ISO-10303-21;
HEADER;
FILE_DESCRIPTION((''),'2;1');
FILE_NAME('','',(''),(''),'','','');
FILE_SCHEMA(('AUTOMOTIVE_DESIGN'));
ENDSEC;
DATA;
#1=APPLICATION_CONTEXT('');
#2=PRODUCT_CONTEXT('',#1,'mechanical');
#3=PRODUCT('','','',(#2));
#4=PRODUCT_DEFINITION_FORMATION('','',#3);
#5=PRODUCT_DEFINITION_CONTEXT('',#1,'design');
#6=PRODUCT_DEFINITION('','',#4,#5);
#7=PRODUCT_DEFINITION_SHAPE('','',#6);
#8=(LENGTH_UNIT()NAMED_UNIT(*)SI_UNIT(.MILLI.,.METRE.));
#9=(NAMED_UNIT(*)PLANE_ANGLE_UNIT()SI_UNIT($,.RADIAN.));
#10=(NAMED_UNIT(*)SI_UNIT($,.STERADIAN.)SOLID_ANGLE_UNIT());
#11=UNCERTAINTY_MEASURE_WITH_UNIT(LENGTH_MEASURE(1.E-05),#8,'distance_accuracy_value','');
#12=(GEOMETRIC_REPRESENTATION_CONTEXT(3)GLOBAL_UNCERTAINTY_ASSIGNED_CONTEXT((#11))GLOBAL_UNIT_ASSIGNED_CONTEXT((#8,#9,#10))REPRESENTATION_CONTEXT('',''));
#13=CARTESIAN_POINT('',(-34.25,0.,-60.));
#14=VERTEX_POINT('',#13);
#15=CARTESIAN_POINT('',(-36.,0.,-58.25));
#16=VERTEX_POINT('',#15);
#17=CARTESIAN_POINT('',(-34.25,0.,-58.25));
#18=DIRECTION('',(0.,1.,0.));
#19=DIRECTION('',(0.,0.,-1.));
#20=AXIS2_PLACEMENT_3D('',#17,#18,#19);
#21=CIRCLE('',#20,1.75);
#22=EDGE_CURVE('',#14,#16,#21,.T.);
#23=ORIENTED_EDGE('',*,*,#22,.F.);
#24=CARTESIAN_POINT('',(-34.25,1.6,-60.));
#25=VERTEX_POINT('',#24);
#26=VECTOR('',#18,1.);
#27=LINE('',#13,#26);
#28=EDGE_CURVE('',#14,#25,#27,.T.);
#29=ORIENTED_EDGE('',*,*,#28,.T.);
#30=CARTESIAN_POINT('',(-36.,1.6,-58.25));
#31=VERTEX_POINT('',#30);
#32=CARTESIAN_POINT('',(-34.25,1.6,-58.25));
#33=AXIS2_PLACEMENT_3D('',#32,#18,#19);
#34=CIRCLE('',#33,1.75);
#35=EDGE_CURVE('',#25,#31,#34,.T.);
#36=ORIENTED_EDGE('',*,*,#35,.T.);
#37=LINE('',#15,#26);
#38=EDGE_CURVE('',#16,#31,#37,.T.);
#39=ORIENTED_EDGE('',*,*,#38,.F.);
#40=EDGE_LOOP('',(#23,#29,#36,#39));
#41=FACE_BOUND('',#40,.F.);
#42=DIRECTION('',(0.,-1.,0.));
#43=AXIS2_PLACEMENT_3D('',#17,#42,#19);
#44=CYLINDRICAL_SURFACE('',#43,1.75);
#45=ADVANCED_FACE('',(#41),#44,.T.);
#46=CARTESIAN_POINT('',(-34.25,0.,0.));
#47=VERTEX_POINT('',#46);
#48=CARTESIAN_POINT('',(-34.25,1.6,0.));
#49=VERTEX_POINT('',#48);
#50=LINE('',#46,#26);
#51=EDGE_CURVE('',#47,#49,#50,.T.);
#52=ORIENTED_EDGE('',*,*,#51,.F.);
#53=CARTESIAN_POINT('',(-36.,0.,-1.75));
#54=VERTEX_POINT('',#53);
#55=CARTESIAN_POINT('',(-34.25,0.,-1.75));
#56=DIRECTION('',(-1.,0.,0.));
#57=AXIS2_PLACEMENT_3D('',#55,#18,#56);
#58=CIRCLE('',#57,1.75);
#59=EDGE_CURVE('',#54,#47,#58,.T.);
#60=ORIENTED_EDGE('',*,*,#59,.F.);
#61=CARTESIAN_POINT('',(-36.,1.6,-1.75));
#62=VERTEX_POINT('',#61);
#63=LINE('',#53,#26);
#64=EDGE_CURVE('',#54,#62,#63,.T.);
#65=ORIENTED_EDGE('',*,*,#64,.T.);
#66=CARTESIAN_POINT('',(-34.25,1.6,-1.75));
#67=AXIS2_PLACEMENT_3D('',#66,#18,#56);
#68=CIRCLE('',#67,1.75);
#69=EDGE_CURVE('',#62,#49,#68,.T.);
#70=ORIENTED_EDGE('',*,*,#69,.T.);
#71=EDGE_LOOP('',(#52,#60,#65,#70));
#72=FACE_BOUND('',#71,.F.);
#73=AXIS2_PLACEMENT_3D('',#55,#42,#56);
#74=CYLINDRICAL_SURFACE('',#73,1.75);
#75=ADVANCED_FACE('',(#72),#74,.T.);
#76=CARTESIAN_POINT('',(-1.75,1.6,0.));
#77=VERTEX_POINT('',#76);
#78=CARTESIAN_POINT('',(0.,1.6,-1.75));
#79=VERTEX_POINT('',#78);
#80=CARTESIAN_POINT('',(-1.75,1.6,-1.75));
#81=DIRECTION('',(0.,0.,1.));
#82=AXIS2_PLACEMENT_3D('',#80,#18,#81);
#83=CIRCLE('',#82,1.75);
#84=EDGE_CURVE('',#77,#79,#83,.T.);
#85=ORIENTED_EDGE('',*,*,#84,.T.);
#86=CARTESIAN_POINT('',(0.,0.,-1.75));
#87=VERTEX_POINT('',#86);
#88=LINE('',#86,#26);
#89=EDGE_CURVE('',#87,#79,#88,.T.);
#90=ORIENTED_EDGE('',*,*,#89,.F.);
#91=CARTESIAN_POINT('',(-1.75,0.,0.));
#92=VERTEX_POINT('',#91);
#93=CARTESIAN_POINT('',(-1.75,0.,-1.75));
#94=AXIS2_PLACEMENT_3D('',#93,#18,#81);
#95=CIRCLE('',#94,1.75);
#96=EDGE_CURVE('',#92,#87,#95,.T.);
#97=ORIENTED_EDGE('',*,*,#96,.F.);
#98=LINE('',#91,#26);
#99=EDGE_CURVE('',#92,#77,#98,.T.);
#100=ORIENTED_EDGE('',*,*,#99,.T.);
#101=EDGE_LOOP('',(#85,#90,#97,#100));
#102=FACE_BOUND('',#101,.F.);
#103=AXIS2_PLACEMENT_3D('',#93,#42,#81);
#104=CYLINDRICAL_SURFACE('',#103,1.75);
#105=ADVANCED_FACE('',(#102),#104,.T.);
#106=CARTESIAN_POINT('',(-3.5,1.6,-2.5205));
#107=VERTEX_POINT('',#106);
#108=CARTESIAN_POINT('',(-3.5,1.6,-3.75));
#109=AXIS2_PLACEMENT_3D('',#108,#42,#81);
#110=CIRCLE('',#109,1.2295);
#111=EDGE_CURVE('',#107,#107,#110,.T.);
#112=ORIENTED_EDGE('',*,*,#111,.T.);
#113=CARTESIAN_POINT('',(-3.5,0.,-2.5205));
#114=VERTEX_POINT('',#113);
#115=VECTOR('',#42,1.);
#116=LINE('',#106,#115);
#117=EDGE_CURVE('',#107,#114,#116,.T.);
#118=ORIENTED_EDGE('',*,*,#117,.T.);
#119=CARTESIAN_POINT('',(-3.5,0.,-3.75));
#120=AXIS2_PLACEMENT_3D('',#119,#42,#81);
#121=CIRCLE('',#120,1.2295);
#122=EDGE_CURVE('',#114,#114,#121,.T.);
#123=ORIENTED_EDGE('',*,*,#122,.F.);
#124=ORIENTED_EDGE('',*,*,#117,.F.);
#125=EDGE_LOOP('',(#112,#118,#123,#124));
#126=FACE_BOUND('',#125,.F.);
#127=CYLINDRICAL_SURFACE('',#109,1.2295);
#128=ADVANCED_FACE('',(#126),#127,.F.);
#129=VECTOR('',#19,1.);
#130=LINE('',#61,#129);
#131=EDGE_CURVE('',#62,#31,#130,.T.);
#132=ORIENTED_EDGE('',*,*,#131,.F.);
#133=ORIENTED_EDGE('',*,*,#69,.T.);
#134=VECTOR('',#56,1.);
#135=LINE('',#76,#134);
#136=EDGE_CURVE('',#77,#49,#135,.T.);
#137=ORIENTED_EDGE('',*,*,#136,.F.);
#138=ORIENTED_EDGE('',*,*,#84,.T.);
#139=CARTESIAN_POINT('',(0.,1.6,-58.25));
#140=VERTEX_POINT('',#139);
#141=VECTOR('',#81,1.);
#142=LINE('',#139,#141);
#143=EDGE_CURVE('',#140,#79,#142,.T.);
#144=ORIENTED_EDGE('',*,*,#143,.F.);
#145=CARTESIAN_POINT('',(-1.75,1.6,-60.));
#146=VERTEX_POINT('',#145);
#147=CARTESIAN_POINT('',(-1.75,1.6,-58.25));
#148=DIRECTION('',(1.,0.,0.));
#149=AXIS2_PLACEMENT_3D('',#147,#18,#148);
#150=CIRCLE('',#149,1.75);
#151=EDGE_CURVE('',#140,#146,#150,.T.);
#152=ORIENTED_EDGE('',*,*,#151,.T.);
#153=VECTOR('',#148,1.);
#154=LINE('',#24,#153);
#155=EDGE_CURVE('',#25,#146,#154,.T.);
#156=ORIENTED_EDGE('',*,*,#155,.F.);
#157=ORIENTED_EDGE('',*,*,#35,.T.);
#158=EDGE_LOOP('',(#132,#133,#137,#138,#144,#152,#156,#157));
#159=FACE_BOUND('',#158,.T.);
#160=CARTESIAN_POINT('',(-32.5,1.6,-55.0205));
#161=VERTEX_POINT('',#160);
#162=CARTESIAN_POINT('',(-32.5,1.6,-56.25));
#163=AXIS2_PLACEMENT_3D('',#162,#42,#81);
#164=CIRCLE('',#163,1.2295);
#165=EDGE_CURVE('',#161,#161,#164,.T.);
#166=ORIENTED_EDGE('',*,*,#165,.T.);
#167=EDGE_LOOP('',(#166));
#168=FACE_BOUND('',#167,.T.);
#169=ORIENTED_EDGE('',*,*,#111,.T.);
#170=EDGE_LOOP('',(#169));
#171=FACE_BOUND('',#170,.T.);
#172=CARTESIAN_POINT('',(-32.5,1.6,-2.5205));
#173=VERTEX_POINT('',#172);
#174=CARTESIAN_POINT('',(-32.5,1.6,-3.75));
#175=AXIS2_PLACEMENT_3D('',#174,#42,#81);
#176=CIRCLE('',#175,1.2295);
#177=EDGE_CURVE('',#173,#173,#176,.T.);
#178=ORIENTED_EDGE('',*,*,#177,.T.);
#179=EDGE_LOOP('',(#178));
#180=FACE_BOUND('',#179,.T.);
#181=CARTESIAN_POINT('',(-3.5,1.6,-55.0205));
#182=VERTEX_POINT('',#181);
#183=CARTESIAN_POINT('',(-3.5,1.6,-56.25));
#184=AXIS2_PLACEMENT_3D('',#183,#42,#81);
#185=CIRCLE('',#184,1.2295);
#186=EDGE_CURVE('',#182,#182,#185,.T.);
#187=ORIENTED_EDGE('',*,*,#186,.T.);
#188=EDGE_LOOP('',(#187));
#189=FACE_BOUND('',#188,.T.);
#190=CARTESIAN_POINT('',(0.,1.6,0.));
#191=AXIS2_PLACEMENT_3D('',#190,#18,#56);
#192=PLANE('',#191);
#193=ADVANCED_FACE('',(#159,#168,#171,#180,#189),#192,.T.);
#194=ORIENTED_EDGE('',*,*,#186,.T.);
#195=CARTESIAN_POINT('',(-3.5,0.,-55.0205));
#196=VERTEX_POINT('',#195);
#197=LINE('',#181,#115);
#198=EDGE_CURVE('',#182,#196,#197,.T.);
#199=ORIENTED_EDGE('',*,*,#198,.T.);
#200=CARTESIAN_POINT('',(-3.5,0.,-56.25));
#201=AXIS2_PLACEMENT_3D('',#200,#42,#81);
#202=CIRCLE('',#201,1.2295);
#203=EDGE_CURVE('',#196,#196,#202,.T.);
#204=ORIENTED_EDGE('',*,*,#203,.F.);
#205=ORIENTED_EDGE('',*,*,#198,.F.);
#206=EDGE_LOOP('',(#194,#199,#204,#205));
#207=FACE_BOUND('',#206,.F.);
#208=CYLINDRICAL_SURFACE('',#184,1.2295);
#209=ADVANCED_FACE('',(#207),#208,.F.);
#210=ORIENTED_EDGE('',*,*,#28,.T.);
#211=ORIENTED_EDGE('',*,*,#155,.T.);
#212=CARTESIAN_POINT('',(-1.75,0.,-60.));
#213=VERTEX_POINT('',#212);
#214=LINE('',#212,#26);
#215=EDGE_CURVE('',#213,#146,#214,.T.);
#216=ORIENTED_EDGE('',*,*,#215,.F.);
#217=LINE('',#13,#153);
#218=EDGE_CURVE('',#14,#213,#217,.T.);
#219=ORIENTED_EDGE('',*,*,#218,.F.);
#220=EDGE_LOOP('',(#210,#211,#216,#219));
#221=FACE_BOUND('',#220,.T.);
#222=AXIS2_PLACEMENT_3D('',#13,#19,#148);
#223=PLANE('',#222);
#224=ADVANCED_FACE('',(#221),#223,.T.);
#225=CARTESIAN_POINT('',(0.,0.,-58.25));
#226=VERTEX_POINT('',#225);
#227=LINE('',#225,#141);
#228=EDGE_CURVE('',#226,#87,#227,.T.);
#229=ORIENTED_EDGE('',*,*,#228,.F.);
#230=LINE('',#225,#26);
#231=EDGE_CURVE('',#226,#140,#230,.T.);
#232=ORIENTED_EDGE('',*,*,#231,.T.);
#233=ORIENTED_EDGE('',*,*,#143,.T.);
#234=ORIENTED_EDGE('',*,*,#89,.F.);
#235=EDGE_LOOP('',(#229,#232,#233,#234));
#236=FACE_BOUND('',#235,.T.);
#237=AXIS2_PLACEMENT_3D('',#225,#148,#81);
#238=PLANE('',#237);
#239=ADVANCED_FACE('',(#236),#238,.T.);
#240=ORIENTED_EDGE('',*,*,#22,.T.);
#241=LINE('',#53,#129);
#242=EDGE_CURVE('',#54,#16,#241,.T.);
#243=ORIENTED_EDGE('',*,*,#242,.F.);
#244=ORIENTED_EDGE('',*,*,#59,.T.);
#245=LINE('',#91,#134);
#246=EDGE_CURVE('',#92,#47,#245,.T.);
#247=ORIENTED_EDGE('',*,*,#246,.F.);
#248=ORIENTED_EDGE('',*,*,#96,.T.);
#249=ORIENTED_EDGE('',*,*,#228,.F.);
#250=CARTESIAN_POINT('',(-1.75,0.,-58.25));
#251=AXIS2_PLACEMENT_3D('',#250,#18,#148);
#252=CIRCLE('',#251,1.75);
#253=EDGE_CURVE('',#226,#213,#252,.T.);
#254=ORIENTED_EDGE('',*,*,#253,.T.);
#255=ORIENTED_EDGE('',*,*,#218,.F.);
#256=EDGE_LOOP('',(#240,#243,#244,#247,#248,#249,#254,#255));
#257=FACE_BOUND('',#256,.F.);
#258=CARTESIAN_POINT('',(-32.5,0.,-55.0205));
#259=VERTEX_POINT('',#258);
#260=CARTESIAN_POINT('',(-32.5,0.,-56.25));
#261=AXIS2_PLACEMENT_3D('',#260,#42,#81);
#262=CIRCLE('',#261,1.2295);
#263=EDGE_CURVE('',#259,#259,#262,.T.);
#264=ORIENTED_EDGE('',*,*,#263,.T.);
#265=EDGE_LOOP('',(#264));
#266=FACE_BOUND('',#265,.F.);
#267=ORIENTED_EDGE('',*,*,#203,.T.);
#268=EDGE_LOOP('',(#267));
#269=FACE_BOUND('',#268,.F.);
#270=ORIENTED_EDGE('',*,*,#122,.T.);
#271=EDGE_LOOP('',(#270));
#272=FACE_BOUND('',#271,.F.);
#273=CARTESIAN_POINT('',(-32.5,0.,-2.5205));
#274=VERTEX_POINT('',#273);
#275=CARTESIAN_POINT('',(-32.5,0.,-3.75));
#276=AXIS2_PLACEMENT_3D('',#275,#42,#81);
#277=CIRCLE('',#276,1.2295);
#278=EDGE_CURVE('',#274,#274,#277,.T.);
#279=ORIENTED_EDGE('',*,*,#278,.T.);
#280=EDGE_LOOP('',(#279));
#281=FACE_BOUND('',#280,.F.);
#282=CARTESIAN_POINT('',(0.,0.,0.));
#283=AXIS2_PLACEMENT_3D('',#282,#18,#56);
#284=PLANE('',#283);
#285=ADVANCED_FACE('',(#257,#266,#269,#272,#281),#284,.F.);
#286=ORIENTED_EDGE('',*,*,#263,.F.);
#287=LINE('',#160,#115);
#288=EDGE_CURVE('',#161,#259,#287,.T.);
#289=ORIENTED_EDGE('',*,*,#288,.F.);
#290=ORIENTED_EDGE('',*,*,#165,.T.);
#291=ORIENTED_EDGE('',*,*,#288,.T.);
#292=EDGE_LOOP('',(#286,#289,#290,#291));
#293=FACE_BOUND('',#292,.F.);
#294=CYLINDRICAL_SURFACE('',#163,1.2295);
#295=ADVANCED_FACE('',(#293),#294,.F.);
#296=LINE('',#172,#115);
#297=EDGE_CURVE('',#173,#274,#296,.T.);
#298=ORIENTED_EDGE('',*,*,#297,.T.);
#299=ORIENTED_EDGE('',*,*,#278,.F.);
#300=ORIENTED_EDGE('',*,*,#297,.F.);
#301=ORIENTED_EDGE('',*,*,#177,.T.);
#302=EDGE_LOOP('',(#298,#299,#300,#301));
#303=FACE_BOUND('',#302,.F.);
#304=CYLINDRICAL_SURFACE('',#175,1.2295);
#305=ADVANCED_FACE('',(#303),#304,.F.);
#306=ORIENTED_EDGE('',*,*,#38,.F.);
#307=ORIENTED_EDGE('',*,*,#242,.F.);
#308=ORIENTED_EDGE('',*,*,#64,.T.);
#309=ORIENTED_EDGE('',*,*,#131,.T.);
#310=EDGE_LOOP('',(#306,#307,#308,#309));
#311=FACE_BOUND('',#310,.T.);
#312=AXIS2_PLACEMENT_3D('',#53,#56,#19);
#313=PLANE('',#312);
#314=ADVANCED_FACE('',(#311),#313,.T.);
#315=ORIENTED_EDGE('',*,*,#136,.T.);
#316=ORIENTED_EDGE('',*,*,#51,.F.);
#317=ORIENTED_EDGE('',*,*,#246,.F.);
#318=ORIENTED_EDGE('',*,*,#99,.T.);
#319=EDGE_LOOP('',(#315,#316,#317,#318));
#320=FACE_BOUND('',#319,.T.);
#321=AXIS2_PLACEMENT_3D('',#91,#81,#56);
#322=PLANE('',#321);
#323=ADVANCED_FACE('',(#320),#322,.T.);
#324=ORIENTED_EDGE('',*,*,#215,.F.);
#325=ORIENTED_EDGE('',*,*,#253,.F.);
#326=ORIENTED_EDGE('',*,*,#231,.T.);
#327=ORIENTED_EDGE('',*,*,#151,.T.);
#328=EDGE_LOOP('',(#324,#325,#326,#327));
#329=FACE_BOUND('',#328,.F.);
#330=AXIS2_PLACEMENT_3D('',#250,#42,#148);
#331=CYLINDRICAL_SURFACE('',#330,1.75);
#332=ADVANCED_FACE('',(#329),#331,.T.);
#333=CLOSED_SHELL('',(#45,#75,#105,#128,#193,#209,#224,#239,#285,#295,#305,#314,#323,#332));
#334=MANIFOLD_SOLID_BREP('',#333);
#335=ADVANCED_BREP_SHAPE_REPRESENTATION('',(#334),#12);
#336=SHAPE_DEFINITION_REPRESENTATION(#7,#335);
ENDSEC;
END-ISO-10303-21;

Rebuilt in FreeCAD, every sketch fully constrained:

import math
import FreeCAD as App
import Part
import Sketcher
Q = App.Units.Quantity

doc = App.newDocument("Part")
body = doc.addObject("PartDesign::Body", "Body")

# Sketch on XZ plane
sketch1 = body.newObject("Sketcher::SketchObject", "Sketch")
sketch1.AttachmentSupport = (doc.getObject("XZ_Plane"), [""])
sketch1.MapMode = "FlatFace"
sketch1.addGeometry(Part.LineSegment(App.Vector(-34.2, 0, 0), App.Vector(-1.8, 0, 0)), False)
sketch1.addGeometry(Part.ArcOfCircle(Part.Circle(App.Vector(-1.8, -1.8, 0), App.Vector(0, 0, 1), 1.8), math.radians(0), math.radians(90)), False)
sketch1.addGeometry(Part.LineSegment(App.Vector(0, -1.8, 0), App.Vector(0, -58.2, 0)), False)
sketch1.addGeometry(Part.ArcOfCircle(Part.Circle(App.Vector(-1.8, -58.2, 0), App.Vector(0, 0, 1), 1.8), math.radians(-90), math.radians(0)), False)
sketch1.addGeometry(Part.LineSegment(App.Vector(-1.8, -60, 0), App.Vector(-34.2, -60, 0)), False)
sketch1.addGeometry(Part.ArcOfCircle(Part.Circle(App.Vector(-34.2, -58.2, 0), App.Vector(0, 0, 1), 1.8), math.radians(180), math.radians(270)), False)
sketch1.addGeometry(Part.LineSegment(App.Vector(-36, -58.2, 0), App.Vector(-36, -1.8, 0)), False)
sketch1.addGeometry(Part.ArcOfCircle(Part.Circle(App.Vector(-34.2, -1.8, 0), App.Vector(0, 0, 1), 1.8), math.radians(90), math.radians(180)), False)
sketch1.addConstraint(Sketcher.Constraint("Tangent", 0, 2, 1, 2))
sketch1.addConstraint(Sketcher.Constraint("Tangent", 1, 1, 2, 1))
sketch1.addConstraint(Sketcher.Constraint("Tangent", 2, 2, 3, 2))
sketch1.addConstraint(Sketcher.Constraint("Tangent", 3, 1, 4, 1))
sketch1.addConstraint(Sketcher.Constraint("Tangent", 4, 2, 5, 2))
sketch1.addConstraint(Sketcher.Constraint("Tangent", 5, 1, 6, 1))
sketch1.addConstraint(Sketcher.Constraint("Tangent", 6, 2, 7, 2))
sketch1.addConstraint(Sketcher.Constraint("Tangent", 7, 1, 0, 1))
sketch1.addConstraint(Sketcher.Constraint("Horizontal", 0))
sketch1.addConstraint(Sketcher.Constraint("Vertical", 2))
sketch1.addConstraint(Sketcher.Constraint("Horizontal", 4))
sketch1.addConstraint(Sketcher.Constraint("Vertical", 6))
sketch1.addConstraint(Sketcher.Constraint("Equal", 1, 3))
sketch1.addConstraint(Sketcher.Constraint("Equal", 3, 5))
sketch1.addConstraint(Sketcher.Constraint("Equal", 5, 7))
sketch1.addConstraint(Sketcher.Constraint("PointOnObject", 0, 2, -1))
sketch1.addConstraint(Sketcher.Constraint("PointOnObject", 1, 1, -2))
sketch1.addConstraint(Sketcher.Constraint("Radius", 1, Q("1.75 mm")))
sketch1.addConstraint(Sketcher.Constraint("DistanceY", 3, 1, -1, 1, Q("60 mm")))
sketch1.addConstraint(Sketcher.Constraint("DistanceX", 5, 1, -1, 1, Q("36 mm")))
pad1 = body.newObject("PartDesign::Pad", "Pad")
pad1.Profile = sketch1
pad1.Length = 1.6
pad1.Reversed = True

# Sketch on XZ plane
sketch2 = body.newObject("Sketcher::SketchObject", "Sketch001")
sketch2.AttachmentSupport = (doc.getObject("XZ_Plane"), [""])
sketch2.MapMode = "FlatFace"
sketch2.AttachmentOffset = App.Placement(App.Vector(0, 0, -1.6), App.Rotation())
sketch2.addGeometry(Part.Circle(App.Vector(-32.5, -3.8, 0), App.Vector(0, 0, 1), 1.2), False)
sketch2.addGeometry(Part.Circle(App.Vector(-3.5, -3.8, 0), App.Vector(0, 0, 1), 1.2), False)
sketch2.addGeometry(Part.Circle(App.Vector(-3.5, -56.2, 0), App.Vector(0, 0, 1), 1.2), False)
sketch2.addGeometry(Part.Circle(App.Vector(-32.5, -56.2, 0), App.Vector(0, 0, 1), 1.2), False)
sketch2.addConstraint(Sketcher.Constraint("Equal", 0, 1))
sketch2.addConstraint(Sketcher.Constraint("Equal", 1, 2))
sketch2.addConstraint(Sketcher.Constraint("Equal", 2, 3))
sketch2.addConstraint(Sketcher.Constraint("Horizontal", 0, 3, 1, 3))
sketch2.addConstraint(Sketcher.Constraint("Horizontal", 2, 3, 3, 3))
sketch2.addConstraint(Sketcher.Constraint("Vertical", 1, 3, 2, 3))
sketch2.addConstraint(Sketcher.Constraint("Vertical", 0, 3, 3, 3))
sketch2.addConstraint(Sketcher.Constraint("Diameter", 0, Q("2.459 mm")))
sketch2.addConstraint(Sketcher.Constraint("DistanceX", 0, 3, 1, 3, Q("29 mm")))
sketch2.addConstraint(Sketcher.Constraint("DistanceX", 0, 3, -1, 1, Q("32.5 mm")))
sketch2.addConstraint(Sketcher.Constraint("DistanceY", 2, 3, 1, 3, Q("52.5 mm")))
sketch2.addConstraint(Sketcher.Constraint("DistanceY", 0, 3, -1, 1, Q("3.75 mm")))
doc.recompute()
hole = body.newObject("PartDesign::Hole", "Hole")
hole.Profile = sketch2
hole.ThreadType = "None"
hole.Diameter = 2.459
hole.DepthType = "Dimension"
hole.Depth = 8.8
hole.DrillPoint = "Flat"
hole.Reversed = True

doc.recompute()
